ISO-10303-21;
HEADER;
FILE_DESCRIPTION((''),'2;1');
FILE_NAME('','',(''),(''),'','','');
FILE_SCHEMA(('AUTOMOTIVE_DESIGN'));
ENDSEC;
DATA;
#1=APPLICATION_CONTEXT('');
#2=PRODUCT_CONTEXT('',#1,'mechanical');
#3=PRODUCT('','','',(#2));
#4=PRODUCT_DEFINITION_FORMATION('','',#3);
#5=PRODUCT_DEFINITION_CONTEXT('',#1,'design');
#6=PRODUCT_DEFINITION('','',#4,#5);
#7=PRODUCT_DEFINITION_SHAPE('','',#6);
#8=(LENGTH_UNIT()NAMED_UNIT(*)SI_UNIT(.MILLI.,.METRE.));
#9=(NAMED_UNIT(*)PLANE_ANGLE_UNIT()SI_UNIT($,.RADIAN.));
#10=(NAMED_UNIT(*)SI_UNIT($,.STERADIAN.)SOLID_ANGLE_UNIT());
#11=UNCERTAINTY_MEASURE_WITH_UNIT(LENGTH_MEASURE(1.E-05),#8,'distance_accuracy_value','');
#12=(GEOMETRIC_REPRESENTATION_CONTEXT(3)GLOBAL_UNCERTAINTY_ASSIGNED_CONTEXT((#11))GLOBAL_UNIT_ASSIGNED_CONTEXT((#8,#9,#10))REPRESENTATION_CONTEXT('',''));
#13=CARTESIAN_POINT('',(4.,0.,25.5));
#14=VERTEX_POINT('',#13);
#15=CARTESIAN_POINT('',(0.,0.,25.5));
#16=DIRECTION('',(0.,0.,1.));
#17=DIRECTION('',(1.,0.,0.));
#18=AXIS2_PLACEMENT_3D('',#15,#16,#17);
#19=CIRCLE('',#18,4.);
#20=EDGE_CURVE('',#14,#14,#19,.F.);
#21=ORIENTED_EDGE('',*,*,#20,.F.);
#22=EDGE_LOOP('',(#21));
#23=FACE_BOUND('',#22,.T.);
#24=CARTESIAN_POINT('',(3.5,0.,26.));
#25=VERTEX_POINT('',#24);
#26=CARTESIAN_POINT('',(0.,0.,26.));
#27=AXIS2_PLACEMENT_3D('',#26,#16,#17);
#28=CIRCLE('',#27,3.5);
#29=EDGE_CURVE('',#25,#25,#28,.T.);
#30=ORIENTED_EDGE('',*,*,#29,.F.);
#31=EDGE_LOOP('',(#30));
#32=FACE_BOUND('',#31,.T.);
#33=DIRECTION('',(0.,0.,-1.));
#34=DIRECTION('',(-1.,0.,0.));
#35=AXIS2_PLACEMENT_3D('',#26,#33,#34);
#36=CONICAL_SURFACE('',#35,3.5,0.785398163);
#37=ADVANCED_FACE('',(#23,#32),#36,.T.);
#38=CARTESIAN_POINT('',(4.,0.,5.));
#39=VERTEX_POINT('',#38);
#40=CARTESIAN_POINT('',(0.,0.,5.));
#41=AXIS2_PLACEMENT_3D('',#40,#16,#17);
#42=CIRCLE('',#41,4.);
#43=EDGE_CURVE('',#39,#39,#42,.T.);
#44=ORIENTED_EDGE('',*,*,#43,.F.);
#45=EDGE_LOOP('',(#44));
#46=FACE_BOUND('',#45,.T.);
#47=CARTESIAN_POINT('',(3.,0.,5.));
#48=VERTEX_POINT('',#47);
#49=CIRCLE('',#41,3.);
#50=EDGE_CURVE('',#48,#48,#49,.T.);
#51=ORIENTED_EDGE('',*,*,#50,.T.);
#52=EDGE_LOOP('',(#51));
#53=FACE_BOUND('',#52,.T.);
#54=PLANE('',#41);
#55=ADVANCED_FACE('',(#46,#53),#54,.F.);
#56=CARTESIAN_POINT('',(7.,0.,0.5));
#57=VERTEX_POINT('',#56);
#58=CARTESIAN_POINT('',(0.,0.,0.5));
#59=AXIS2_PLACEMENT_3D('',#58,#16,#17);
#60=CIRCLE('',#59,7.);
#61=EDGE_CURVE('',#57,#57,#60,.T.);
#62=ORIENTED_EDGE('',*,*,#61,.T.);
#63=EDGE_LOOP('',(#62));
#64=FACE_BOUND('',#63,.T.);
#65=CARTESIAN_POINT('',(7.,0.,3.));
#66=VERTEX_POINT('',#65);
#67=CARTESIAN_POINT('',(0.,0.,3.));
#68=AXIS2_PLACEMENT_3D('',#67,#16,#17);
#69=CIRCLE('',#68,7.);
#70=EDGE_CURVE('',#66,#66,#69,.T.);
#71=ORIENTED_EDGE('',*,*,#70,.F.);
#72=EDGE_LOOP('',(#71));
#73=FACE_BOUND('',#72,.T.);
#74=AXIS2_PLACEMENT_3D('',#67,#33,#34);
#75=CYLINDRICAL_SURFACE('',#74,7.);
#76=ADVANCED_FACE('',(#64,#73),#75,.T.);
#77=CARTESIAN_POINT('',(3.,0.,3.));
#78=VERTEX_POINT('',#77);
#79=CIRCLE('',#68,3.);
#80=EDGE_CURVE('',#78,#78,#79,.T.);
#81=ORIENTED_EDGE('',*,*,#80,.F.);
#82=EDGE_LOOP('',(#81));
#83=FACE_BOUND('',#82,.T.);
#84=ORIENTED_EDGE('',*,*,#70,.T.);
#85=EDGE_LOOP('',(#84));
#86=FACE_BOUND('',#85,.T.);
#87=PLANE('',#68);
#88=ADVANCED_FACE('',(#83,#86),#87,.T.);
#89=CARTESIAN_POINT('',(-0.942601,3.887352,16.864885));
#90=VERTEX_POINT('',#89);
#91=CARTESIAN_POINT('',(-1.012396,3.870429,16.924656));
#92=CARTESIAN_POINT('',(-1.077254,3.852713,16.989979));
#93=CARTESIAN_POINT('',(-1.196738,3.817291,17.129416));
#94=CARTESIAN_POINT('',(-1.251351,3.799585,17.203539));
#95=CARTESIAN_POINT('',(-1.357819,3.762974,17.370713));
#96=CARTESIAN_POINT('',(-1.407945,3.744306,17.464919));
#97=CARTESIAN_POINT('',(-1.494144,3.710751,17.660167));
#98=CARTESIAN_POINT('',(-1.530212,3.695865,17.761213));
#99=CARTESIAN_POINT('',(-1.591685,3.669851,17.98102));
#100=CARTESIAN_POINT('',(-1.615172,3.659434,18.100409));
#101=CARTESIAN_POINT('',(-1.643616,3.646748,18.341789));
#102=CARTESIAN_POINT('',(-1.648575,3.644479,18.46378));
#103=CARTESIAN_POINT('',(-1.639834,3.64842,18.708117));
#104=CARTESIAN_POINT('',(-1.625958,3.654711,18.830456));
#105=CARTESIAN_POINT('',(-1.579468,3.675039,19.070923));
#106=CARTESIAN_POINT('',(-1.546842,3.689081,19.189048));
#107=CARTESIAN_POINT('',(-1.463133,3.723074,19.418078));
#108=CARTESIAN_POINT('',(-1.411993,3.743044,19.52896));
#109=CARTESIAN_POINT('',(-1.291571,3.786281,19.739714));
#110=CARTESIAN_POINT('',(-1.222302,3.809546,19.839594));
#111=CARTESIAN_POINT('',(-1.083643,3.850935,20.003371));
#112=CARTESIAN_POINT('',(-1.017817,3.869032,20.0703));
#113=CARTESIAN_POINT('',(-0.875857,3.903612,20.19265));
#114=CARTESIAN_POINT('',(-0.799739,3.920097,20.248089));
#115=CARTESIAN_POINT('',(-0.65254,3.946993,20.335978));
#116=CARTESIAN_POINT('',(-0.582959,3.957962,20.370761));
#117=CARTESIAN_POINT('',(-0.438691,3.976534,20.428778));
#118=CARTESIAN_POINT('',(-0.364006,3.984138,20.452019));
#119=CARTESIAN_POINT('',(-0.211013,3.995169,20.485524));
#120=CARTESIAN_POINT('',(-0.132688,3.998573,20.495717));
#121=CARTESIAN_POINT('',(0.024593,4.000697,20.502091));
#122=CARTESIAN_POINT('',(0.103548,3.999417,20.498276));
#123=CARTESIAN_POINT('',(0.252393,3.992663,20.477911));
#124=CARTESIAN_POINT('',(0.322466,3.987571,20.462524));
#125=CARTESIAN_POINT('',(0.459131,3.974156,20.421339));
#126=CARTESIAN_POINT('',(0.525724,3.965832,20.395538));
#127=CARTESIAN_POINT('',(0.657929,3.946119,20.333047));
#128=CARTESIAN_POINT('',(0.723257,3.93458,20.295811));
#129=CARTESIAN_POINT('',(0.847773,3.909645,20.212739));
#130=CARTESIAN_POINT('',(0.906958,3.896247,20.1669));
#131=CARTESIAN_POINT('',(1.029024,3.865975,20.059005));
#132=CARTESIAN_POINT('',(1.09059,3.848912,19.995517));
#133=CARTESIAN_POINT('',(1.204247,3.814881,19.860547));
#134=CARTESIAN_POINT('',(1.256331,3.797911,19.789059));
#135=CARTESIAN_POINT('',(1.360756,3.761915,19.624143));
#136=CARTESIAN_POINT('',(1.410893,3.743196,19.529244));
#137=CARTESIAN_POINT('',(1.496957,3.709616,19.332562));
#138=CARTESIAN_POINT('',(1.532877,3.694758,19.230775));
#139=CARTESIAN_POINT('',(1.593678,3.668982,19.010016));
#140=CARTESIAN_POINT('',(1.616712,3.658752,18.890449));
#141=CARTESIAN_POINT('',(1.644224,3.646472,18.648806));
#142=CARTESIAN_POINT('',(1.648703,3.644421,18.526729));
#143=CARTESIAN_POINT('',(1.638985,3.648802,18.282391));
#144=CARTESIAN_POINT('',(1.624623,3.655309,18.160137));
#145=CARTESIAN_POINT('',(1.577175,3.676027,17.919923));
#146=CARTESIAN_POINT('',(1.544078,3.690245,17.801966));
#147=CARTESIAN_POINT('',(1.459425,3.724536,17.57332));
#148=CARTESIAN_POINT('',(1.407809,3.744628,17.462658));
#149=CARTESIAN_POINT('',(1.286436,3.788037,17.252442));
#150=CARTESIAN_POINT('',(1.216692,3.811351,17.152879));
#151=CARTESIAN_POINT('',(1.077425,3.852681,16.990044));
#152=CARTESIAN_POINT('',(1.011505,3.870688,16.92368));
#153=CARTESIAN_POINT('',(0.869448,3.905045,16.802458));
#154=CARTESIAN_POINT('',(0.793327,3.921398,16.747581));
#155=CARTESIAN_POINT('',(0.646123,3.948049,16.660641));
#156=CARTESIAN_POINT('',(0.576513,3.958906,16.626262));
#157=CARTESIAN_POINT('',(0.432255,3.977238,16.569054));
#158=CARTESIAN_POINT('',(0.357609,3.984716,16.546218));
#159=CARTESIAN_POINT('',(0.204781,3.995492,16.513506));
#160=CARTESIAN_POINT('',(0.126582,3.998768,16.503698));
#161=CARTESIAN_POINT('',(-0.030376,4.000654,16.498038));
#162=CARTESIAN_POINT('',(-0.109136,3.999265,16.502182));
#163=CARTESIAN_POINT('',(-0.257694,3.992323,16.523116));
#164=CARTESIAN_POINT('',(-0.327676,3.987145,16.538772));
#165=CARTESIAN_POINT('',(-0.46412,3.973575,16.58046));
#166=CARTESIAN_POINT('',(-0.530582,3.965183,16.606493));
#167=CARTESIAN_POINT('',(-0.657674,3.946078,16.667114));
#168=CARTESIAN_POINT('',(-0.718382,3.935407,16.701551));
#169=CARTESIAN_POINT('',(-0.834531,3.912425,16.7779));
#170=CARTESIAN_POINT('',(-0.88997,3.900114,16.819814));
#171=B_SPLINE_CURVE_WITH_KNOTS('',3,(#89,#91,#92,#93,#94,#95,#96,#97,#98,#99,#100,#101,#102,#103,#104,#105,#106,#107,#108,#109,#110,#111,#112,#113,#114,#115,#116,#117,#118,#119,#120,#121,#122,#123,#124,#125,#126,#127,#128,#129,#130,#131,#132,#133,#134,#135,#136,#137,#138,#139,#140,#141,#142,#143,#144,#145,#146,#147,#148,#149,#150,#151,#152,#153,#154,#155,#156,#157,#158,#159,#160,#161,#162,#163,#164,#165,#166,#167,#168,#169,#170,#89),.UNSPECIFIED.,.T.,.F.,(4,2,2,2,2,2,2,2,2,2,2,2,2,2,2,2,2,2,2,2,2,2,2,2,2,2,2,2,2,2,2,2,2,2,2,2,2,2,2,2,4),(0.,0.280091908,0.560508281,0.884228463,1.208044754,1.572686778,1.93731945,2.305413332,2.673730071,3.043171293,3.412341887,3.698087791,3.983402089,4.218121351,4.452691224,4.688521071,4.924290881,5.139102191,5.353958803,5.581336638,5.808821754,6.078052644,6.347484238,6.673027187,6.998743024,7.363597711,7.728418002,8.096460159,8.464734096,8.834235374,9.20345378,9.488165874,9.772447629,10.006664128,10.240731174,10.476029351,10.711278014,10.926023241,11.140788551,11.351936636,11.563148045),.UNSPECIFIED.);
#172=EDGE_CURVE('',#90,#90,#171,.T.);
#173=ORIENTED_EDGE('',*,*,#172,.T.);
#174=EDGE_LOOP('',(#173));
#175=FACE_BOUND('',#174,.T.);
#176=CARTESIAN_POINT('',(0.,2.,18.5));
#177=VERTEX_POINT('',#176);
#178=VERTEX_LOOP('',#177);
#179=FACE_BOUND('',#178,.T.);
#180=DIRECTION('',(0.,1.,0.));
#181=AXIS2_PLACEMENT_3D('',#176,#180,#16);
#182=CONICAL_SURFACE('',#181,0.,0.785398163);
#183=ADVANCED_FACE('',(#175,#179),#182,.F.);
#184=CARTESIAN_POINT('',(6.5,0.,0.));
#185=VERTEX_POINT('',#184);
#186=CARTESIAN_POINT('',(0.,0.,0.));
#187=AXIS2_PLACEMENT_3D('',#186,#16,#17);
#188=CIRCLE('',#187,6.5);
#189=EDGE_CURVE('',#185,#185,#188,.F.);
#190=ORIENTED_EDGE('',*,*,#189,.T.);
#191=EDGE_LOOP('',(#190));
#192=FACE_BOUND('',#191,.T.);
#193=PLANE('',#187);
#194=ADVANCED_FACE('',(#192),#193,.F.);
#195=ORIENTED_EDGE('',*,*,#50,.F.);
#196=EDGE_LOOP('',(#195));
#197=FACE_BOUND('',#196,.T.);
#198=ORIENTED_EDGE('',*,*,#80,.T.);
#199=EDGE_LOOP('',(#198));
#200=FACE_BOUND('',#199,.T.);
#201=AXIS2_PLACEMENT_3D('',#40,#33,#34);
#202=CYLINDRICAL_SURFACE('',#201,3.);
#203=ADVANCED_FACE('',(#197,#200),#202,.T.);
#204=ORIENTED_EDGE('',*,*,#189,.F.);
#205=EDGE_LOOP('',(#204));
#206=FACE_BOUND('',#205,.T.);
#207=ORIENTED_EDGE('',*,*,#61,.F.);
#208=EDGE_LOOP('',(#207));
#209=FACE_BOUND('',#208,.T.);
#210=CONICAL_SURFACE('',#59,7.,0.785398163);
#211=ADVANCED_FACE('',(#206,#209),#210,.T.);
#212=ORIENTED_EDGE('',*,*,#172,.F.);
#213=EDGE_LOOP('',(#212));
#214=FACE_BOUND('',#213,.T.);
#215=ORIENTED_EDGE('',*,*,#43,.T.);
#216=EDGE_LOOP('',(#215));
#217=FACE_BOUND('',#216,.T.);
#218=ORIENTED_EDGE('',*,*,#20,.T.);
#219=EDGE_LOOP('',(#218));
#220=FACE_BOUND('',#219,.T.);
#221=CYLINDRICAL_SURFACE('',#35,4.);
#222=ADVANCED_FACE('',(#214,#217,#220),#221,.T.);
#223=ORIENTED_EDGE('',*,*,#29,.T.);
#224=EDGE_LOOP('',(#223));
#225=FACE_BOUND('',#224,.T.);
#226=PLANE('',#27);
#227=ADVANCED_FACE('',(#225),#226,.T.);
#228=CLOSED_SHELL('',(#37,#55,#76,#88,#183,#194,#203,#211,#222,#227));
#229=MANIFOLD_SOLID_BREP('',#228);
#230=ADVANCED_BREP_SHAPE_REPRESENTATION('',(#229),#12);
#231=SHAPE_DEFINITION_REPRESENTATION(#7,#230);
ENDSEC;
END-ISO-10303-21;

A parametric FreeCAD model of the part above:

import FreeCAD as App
import Part
import Sketcher
Q = App.Units.Quantity


def edges_at(feature, points):
    """Names of the edges that pass closest to the given points."""
    edges = feature.Shape.Edges
    near = lambda p: min(range(len(edges)), key=lambda i: edges[i].distToShape(Part.Vertex(*p))[0])
    return sorted({f"Edge{near(p) + 1}" for p in points})


def add_polygon(sketch, points):
    """Adds a closed chain of lines whose ends are joined by coincident constraints."""
    first, n = sketch.GeometryCount, len(points)
    for a, b in zip(points, points[1:] + points[:1]):
        sketch.addGeometry(Part.LineSegment(App.Vector(*a, 0), App.Vector(*b, 0)), False)
    for i in range(n):
        sketch.addConstraint(Sketcher.Constraint("Coincident", first + i, 2, first + (i + 1) % n, 1))

doc = App.newDocument("Part")
params = doc.addObject("Spreadsheet::Sheet", "Params")
for row, (alias, value) in enumerate([
    ("sketch1_diameter", "14 mm"),
    ("pad1_length", "3 mm"),
    ("sketch2_diameter", "8 mm"),
    ("pad2_length", "23 mm"),
    ("sketch3_diameter", "6 mm"),
    ("pocket1_length", "2 mm"),
    ("chamfer_size", "0.5 mm"),
    ("sketch4_width", "2 mm"),
    ("groove_angle", "360 deg"),
], start=1):
    params.set(f"A{row}", alias)
    params.set(f"B{row}", "=" + value)
    params.setAlias(f"B{row}", alias)

body = doc.addObject("PartDesign::Body", "Body")

sketch1 = body.newObject("Sketcher::SketchObject", "Sketch")
sketch1.AttachmentSupport = (doc.getObject("XY_Plane"), [""])
sketch1.MapMode = "FlatFace"
sketch1.addGeometry(Part.Circle(App.Vector(0, 0, 0), App.Vector(0, 0, 1), 7), False)
sketch1.addConstraint(Sketcher.Constraint("Coincident", 0, 3, -1, 1))
sketch1.addConstraint(Sketcher.Constraint("Diameter", 0, Q("14 mm")))
sketch1.setExpression("Constraints[1]", "Params.sketch1_diameter")
pad1 = body.newObject("PartDesign::Pad", "Pad")
pad1.Profile = sketch1
pad1.setExpression("Length", "Params.pad1_length")

sketch2 = body.newObject("Sketcher::SketchObject", "Sketch001")
sketch2.AttachmentSupport = (doc.getObject("XY_Plane"), [""])
sketch2.MapMode = "FlatFace"
sketch2.AttachmentOffset = App.Placement(App.Vector(0, 0, 3), App.Rotation())
sketch2.addGeometry(Part.Circle(App.Vector(0, 0, 0), App.Vector(0, 0, 1), 4), False)
sketch2.addConstraint(Sketcher.Constraint("Coincident", 0, 3, -1, 1))
sketch2.addConstraint(Sketcher.Constraint("Diameter", 0, Q("8 mm")))
sketch2.setExpression("Constraints[1]", "Params.sketch2_diameter")
pad2 = body.newObject("PartDesign::Pad", "Pad001")
pad2.Profile = sketch2
pad2.setExpression("Length", "Params.pad2_length")

sketch3 = body.newObject("Sketcher::SketchObject", "Sketch002")
sketch3.AttachmentSupport = (doc.getObject("XY_Plane"), [""])
sketch3.MapMode = "FlatFace"
sketch3.AttachmentOffset = App.Placement(App.Vector(0, 0, 3), App.Rotation())
add_polygon(sketch3, [(-11.268, 11.268), (-11.268, -11.268), (11.268, -11.268), (11.268, 11.268)])
sketch3.addGeometry(Part.Circle(App.Vector(0, 0, 0), App.Vector(0, 0, 1), 3), False)
sketch3.addConstraint(Sketcher.Constraint("Vertical", 0))
sketch3.addConstraint(Sketcher.Constraint("Horizontal", 1))
sketch3.addConstraint(Sketcher.Constraint("Vertical", 2))
sketch3.addConstraint(Sketcher.Constraint("Horizontal", 3))
sketch3.addConstraint(Sketcher.Constraint("Coincident", 4, 3, -1, 1))
sketch3.addConstraint(Sketcher.Constraint("Symmetric", 0, 2, 2, 2, -1, 1))
sketch3.addConstraint(Sketcher.Constraint("Equal", 3, 0))
sketch3.addConstraint(Sketcher.Constraint("Diameter", 4, Q("6 mm")))
sketch3.addConstraint(Sketcher.Constraint("DistanceX", 1, 1, 1, 2, Q("22.536 mm")))
sketch3.setExpression("Constraints[11]", "Params.sketch3_diameter")
pocket1 = body.newObject("PartDesign::Pocket", "Pocket")
pocket1.Profile = sketch3
pocket1.setExpression("Length", "Params.pocket1_length")
pocket1.Reversed = True
doc.recompute()

chamfer = body.newObject("PartDesign::Chamfer", "Chamfer")
chamfer.Base = (pocket1, edges_at(pocket1, [(-7, 0, 0), (-4, 0, 26)]))
chamfer.setExpression("Size", "Params.chamfer_size")

sketch4 = body.newObject("Sketcher::SketchObject", "Sketch003")
sketch4.AttachmentSupport = (doc.getObject("YZ_Plane"), [""])
sketch4.MapMode = "FlatFace"
add_polygon(sketch4, [(2, 18.5), (4, 16.5), (4, 18.5)])
sketch4.addGeometry(Part.LineSegment(App.Vector(4, 18.5, 0), App.Vector(2, 18.5, 0)), True)
sketch4.addConstraint(Sketcher.Constraint("Vertical", 1))
sketch4.addConstraint(Sketcher.Constraint("Horizontal", 2))
sketch4.addConstraint(Sketcher.Constraint("Horizontal", 3))
sketch4.addConstraint(Sketcher.Constraint("Coincident", 3, 1, 1, 2))
sketch4.addConstraint(Sketcher.Constraint("Equal", 2, 3))
sketch4.addConstraint(Sketcher.Constraint("Equal", 3, 1))
sketch4.addConstraint(Sketcher.Constraint("DistanceX", 2, 2, 2, 1, Q("2 mm")))
sketch4.addConstraint(Sketcher.Constraint("DistanceX", -1, 1, 0, 2, Q("4 mm")))
sketch4.addConstraint(Sketcher.Constraint("DistanceY", -1, 1, 0, 2, Q("16.5 mm")))
sketch4.setExpression("Constraints[9]", "Params.sketch4_width")
groove = body.newObject("PartDesign::Groove", "Groove")
groove.Profile = sketch4
groove.ReferenceAxis = (sketch4, ["Axis0"])
groove.setExpression("Angle", "Params.groove_angle")

doc.recompute()
